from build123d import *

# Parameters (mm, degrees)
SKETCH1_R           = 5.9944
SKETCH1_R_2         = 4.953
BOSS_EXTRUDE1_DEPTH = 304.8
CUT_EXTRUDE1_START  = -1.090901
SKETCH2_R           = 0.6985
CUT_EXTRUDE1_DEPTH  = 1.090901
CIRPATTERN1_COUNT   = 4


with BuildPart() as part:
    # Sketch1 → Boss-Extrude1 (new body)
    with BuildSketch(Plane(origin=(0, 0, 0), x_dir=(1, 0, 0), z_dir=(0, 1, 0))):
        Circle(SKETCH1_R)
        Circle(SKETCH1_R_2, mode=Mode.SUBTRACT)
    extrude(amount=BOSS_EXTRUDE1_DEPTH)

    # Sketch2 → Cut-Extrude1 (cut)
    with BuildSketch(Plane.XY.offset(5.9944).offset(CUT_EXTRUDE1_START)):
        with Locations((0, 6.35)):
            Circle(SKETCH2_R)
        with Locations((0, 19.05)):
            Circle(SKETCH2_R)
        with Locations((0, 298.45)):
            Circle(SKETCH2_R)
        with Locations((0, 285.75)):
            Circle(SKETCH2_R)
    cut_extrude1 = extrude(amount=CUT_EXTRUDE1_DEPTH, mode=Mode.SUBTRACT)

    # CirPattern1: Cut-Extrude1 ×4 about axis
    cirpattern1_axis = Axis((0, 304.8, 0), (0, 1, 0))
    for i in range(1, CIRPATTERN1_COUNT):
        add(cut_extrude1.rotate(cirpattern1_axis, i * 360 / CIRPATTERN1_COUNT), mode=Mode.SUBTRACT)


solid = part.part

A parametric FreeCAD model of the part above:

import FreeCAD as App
import Part
import Sketcher
from FreeCAD import Vector
Q = App.Units.Quantity

doc = App.newDocument("Part")
body = doc.addObject("PartDesign::Body", "Body")

# Sketch on XZ plane
sketch1 = doc.addObject("Sketcher::SketchObject", "Sketch")
body.addObject(sketch1)
sketch1.AttachmentSupport = (doc.XZ_Plane, [""])
sketch1.MapMode = "FlatFace"
sketch1.addGeometry([
    Part.Circle(Vector(0, 0, 0), Vector(0, 0, 1), 5.9944),
    Part.Circle(Vector(0, 0, 0), Vector(0, 0, 1), 4.953),
], False)
sketch1.addConstraint([
    Sketcher.Constraint("Coincident", 0, 3, -1, 1),
    Sketcher.Constraint("Coincident", 1, 3, -1, 1),
    Sketcher.Constraint("Diameter", 1, Q("0.39 in")),
    Sketcher.Constraint("Diameter", 0, Q("0.472 in")),
])
pad1 = doc.addObject("PartDesign::Pad", "Pad")
body.addObject(pad1)
pad1.Profile = sketch1
pad1.Length = Q("12 in")
pad1.Reversed = True

# Sketch on XY plane
sketch2 = doc.addObject("Sketcher::SketchObject", "Sketch001")
body.addObject(sketch2)
sketch2.AttachmentSupport = (doc.XY_Plane, [""])
sketch2.MapMode = "FlatFace"
sketch2.AttachmentOffset = App.Placement(Vector(0, 0, 4.903499), App.Rotation())
sketch2.addGeometry([
    Part.Circle(Vector(0, 6.35, 0), Vector(0, 0, 1), 0.6985),
    Part.Circle(Vector(0, 19.05, 0), Vector(0, 0, 1), 0.6985),
    Part.Circle(Vector(0, 298.45, 0), Vector(0, 0, 1), 0.6985),
    Part.Circle(Vector(0, 285.75, 0), Vector(0, 0, 1), 0.6985),
], False)
sketch2.addConstraint([
    Sketcher.Constraint("Equal", 0, 1),
    Sketcher.Constraint("Equal", 1, 2),
    Sketcher.Constraint("Equal", 2, 3),
    Sketcher.Constraint("PointOnObject", 0, 3, -2),
    Sketcher.Constraint("PointOnObject", 1, 3, -2),
    Sketcher.Constraint("PointOnObject", 2, 3, -2),
    Sketcher.Constraint("PointOnObject", 3, 3, -2),
    Sketcher.Constraint("Diameter", 0, Q("0.055 in")),
    Sketcher.Constraint("DistanceY", 1, 3, 2, 3, Q("11 in")),
    Sketcher.Constraint("DistanceY", 0, 3, 3, 3, Q("11 in")),
    Sketcher.Constraint("DistanceY", 0, 3, 1, 3, Q("0.5 in")),
    Sketcher.Constraint("DistanceY", -1, 1, 0, 3, Q("0.25 in")),
])
pocket1 = doc.addObject("PartDesign::Pocket", "Pocket")
body.addObject(pocket1)
pocket1.Profile = sketch2
pocket1.Length = 1.090901
pocket1.Reversed = True
doc.recompute()

polarpattern = doc.addObject("PartDesign::PolarPattern", "PolarPattern")
body.addObject(polarpattern)
polarpattern.Originals = [pocket1]
polarpattern.Axis = (doc.Y_Axis, [""])
polarpattern.Angle = 360
polarpattern.Occurrences = 4
body.Tip = polarpattern

doc.recompute()
